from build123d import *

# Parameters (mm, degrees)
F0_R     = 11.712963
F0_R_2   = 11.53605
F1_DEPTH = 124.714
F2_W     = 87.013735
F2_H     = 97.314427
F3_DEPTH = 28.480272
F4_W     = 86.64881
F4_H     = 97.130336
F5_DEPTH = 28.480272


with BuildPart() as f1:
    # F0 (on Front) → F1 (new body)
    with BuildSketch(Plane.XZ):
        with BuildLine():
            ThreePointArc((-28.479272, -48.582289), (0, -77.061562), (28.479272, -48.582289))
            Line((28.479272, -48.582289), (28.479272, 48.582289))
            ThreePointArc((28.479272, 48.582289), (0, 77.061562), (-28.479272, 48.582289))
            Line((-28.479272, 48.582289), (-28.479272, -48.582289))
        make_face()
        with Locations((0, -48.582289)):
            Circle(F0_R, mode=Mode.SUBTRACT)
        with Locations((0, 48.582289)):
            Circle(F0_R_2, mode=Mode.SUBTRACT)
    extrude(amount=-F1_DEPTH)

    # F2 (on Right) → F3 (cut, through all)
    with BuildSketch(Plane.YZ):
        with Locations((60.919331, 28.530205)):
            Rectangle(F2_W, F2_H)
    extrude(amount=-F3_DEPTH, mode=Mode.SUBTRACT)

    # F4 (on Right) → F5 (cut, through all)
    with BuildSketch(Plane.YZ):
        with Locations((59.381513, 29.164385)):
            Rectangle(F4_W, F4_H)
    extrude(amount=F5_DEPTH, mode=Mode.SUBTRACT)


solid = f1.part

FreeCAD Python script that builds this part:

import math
import FreeCAD as App
import Part
import Sketcher
from FreeCAD import Vector
Q = App.Units.Quantity


def add_polygon(sketch, points):
    """Adds a closed chain of lines whose ends are joined by coincident constraints."""
    first, n = sketch.GeometryCount, len(points)
    for a, b in zip(points, points[1:] + points[:1]):
        sketch.addGeometry(Part.LineSegment(App.Vector(*a, 0), App.Vector(*b, 0)), False)
    for i in range(n):
        sketch.addConstraint(Sketcher.Constraint("Coincident", first + i, 2, first + (i + 1) % n, 1))

doc = App.newDocument("Part")
body = doc.addObject("PartDesign::Body", "Body")

# Sketch on XZ plane
sketch1 = doc.addObject("Sketcher::SketchObject", "Sketch")
body.addObject(sketch1)
sketch1.AttachmentSupport = (doc.XZ_Plane, [""])
sketch1.MapMode = "FlatFace"
sketch1.addGeometry([
    Part.ArcOfCircle(Part.Circle(Vector(0, -48.58229, 0), Vector(0, 0, 1), 28.479272), math.radians(179.999998), math.radians(360.000002)),  # 0
    Part.LineSegment(Vector(28.479272, -48.582289, 0), Vector(28.479272, 48.582289, 0)),  # 1
    Part.ArcOfCircle(Part.Circle(Vector(0, 48.58229, 0), Vector(0, 0, 1), 28.479272), math.radians(-0.000002), math.radians(180.000002)),  # 2
    Part.LineSegment(Vector(-28.479272, 48.582289, 0), Vector(-28.479272, -48.582289, 0)),  # 3
    Part.Circle(Vector(0, -48.582289, 0), Vector(0, 0, 1), 11.712963),  # 4
    Part.Circle(Vector(0, 48.582289, 0), Vector(0, 0, 1), 11.53605),  # 5
], False)
sketch1.addConstraint([
    Sketcher.Constraint("Tangent", 0, 2, 1, 1),
    Sketcher.Constraint("Tangent", 1, 2, 2, 1),
    Sketcher.Constraint("Tangent", 2, 2, 3, 1),
    Sketcher.Constraint("Tangent", 3, 2, 0, 1),
    Sketcher.Constraint("Vertical", 1),
    Sketcher.Constraint("Vertical", 3),
    Sketcher.Constraint("Coincident", 4, 3, 0, 3),
    Sketcher.Constraint("Coincident", 5, 3, 2, 3),
    Sketcher.Constraint("Symmetric", 0, 3, 2, 3, -1, 1),
    Sketcher.Constraint("Diameter", 5, Q("23.0721 mm")),
    Sketcher.Constraint("Diameter", 4, Q("23.425926 mm")),
    Sketcher.Constraint("Radius", 0, Q("28.479272 mm")),
    Sketcher.Constraint("DistanceY", 1, 1, 1, 2, Q("97.164578 mm")),
])
pad1 = doc.addObject("PartDesign::Pad", "Pad")
body.addObject(pad1)
pad1.Profile = sketch1
pad1.Length = Q("4.91 in")
pad1.Reversed = True

# Sketch on YZ plane
sketch2 = doc.addObject("Sketcher::SketchObject", "Sketch001")
body.addObject(sketch2)
sketch2.AttachmentSupport = (doc.YZ_Plane, [""])
sketch2.MapMode = "FlatFace"
add_polygon(sketch2, [(17.412464, 77.187419), (17.412464, -20.127008), (104.426198, -20.127008), (104.426198, 77.187419)])  # lines 0-3
sketch2.addConstraint([
    Sketcher.Constraint("Vertical", 0),
    Sketcher.Constraint("Horizontal", 1),
    Sketcher.Constraint("Vertical", 2),
    Sketcher.Constraint("Horizontal", 3),
    Sketcher.Constraint("DistanceX", -1, 1, 1, 2, Q("104.426198 mm")),
    Sketcher.Constraint("DistanceX", 1, 1, 1, 2, Q("87.013735 mm")),
    Sketcher.Constraint("DistanceY", 0, 2, 0, 1, Q("97.314427 mm")),
    Sketcher.Constraint("DistanceY", 0, 2, -1, 1, Q("20.127008 mm")),
])
pocket1 = doc.addObject("PartDesign::Pocket", "Pocket")
body.addObject(pocket1)
pocket1.Profile = sketch2
pocket1.Type = "ThroughAll"

# Sketch on YZ plane
sketch3 = doc.addObject("Sketcher::SketchObject", "Sketch002")
body.addObject(sketch3)
sketch3.AttachmentSupport = (doc.YZ_Plane, [""])
sketch3.MapMode = "FlatFace"
add_polygon(sketch3, [(16.057108, 77.729553), (16.057108, -19.400783), (102.705918, -19.400783), (102.705918, 77.729553)])  # lines 0-3
sketch3.addConstraint([
    Sketcher.Constraint("Vertical", 0),
    Sketcher.Constraint("Horizontal", 1),
    Sketcher.Constraint("Vertical", 2),
    Sketcher.Constraint("Horizontal", 3),
    Sketcher.Constraint("DistanceX", 1, 1, 1, 2, Q("86.64881 mm")),
    Sketcher.Constraint("DistanceY", 0, 2, 0, 1, Q("97.130336 mm")),
    Sketcher.Constraint("DistanceX", -1, 1, 0, 2, Q("16.057108 mm")),
    Sketcher.Constraint("DistanceY", 0, 2, -1, 1, Q("19.400783 mm")),
])
pocket2 = doc.addObject("PartDesign::Pocket", "Pocket001")
body.addObject(pocket2)
pocket2.Profile = sketch3
pocket2.Type = "ThroughAll"
pocket2.Reversed = True

doc.recompute()
